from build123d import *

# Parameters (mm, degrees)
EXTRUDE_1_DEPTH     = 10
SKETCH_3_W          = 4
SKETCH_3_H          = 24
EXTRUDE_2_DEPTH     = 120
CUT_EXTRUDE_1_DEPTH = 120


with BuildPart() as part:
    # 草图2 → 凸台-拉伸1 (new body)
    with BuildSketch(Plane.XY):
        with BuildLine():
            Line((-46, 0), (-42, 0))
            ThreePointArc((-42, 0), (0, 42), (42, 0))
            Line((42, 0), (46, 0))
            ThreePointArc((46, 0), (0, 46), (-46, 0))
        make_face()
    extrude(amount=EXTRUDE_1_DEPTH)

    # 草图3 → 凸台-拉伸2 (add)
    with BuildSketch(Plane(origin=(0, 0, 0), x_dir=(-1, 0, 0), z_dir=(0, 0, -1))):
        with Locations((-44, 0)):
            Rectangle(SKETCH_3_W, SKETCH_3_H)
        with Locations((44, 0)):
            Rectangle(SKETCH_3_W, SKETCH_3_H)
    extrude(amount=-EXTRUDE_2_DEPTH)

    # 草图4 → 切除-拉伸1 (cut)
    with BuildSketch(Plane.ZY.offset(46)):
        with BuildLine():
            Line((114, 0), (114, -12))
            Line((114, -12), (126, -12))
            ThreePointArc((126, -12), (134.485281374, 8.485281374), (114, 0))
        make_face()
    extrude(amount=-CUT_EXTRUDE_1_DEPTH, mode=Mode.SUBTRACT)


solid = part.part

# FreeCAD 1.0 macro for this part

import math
import FreeCAD as App
import Part
import Sketcher


def add_polygon(sketch, points):
    """Adds a closed chain of lines whose ends are joined by coincident constraints."""
    first, n = sketch.GeometryCount, len(points)
    for a, b in zip(points, points[1:] + points[:1]):
        sketch.addGeometry(Part.LineSegment(App.Vector(*a, 0), App.Vector(*b, 0)), False)
    for i in range(n):
        sketch.addConstraint(Sketcher.Constraint("Coincident", first + i, 2, first + (i + 1) % n, 1))

doc = App.newDocument("Part")
params = doc.addObject("Spreadsheet::Sheet", "Params")
for row, (alias, value) in enumerate([
    ("sketch1_radius", "42 mm"),
    ("sketch1_radius2", "46 mm"),
    ("pad1_length", "10 mm"),
    ("sketch2_width", "4 mm"),
    ("sketch2_height", "24 mm"),
    ("pad2_length", "120 mm"),
    ("sketch3_radius", "12 mm"),
    ("pocket1_length", "120 mm"),
], start=1):
    params.set(f"A{row}", alias)
    params.set(f"B{row}", "=" + value)
    params.setAlias(f"B{row}", alias)

body = doc.addObject("PartDesign::Body", "Body")

# Sketch on XY plane
sketch1 = body.newObject("Sketcher::SketchObject", "Sketch")
sketch1.AttachmentSupport = (doc.getObject("XY_Plane"), [""])
sketch1.MapMode = "FlatFace"
sketch1.addGeometry(Part.LineSegment(App.Vector(-46, 0, 0), App.Vector(-42, 0, 0)), False)
sketch1.addGeometry(Part.ArcOfCircle(Part.Circle(App.Vector(0, 0, 0), App.Vector(0, 0, 1), 42), math.radians(0), math.radians(180)), False)
sketch1.addGeometry(Part.LineSegment(App.Vector(42, 0, 0), App.Vector(46, 0, 0)), False)
sketch1.addGeometry(Part.ArcOfCircle(Part.Circle(App.Vector(0, 0, 0), App.Vector(0, 0, 1), 46), math.radians(0), math.radians(180)), False)
sketch1.addConstraint(Sketcher.Constraint("Coincident", 0, 2, 1, 2))
sketch1.addConstraint(Sketcher.Constraint("Coincident", 1, 1, 2, 1))
sketch1.addConstraint(Sketcher.Constraint("Coincident", 2, 2, 3, 1))
sketch1.addConstraint(Sketcher.Constraint("Coincident", 3, 2, 0, 1))
sketch1.addConstraint(Sketcher.Constraint("Horizontal", 0))
sketch1.addConstraint(Sketcher.Constraint("Horizontal", 2))
sketch1.addConstraint(Sketcher.Constraint("Coincident", 1, 3, -1, 1))
sketch1.addConstraint(Sketcher.Constraint("Coincident", 3, 3, -1, 1))
sketch1.addConstraint(Sketcher.Constraint("PointOnObject", 0, 2, -1))
sketch1.addConstraint(Sketcher.Constraint("PointOnObject", 1, 1, -1))
sketch1.addConstraint(Sketcher.Constraint("Radius", 1, 42.0))
sketch1.addConstraint(Sketcher.Constraint("Radius", 3, 46.0))
sketch1.setExpression("Constraints[10]", "Params.sketch1_radius")
sketch1.setExpression("Constraints[11]", "Params.sketch1_radius2")
pad1 = body.newObject("PartDesign::Pad", "Pad")
pad1.Profile = sketch1
pad1.setExpression("Length", "Params.pad1_length")

# Sketch on XY plane
sketch2 = body.newObject("Sketcher::SketchObject", "Sketch001")
sketch2.AttachmentSupport = (doc.getObject("XY_Plane"), [""])
sketch2.MapMode = "FlatFace"
add_polygon(sketch2, [(46, 12), (46, -12), (42, -12), (42, 12)])  # lines 0-3
add_polygon(sketch2, [(-42, 12), (-42, -12), (-46, -12), (-46, 12)])  # lines 4-7
sketch2.addConstraint(Sketcher.Constraint("Vertical", 0))
sketch2.addConstraint(Sketcher.Constraint("Horizontal", 1))
sketch2.addConstraint(Sketcher.Constraint("Vertical", 2))
sketch2.addConstraint(Sketcher.Constraint("Horizontal", 3))
sketch2.addConstraint(Sketcher.Constraint("Vertical", 4))
sketch2.addConstraint(Sketcher.Constraint("Horizontal", 5))
sketch2.addConstraint(Sketcher.Constraint("Vertical", 6))
sketch2.addConstraint(Sketcher.Constraint("Horizontal", 7))
sketch2.addConstraint(Sketcher.Constraint("Symmetric", 2, 2, 4, 2, -1, 1))
sketch2.addConstraint(Sketcher.Constraint("Symmetric", 0, 2, 6, 2, -1, 1))
sketch2.addConstraint(Sketcher.Constraint("Horizontal", 1, 2, 4, 2))
sketch2.addConstraint(Sketcher.Constraint("DistanceX", 1, 2, 1, 1, 4.0))
sketch2.addConstraint(Sketcher.Constraint("DistanceY", 0, 2, 0, 1, 24.0))
sketch2.addConstraint(Sketcher.Constraint("DistanceX", -1, 1, 0, 2, 46.0))
sketch2.setExpression("Constraints[19]", "Params.sketch2_width")
sketch2.setExpression("Constraints[20]", "Params.sketch2_height")
pad2 = body.newObject("PartDesign::Pad", "Pad001")
pad2.Profile = sketch2
pad2.setExpression("Length", "Params.pad2_length")

# Sketch on YZ plane
sketch3 = body.newObject("Sketcher::SketchObject", "Sketch002")
sketch3.AttachmentSupport = (doc.getObject("YZ_Plane"), [""])
sketch3.MapMode = "FlatFace"
sketch3.AttachmentOffset = App.Placement(App.Vector(0, 0, -46), App.Rotation())
sketch3.addGeometry(Part.LineSegment(App.Vector(0, 114, 0), App.Vector(-12, 114, 0)), False)
sketch3.addGeometry(Part.LineSegment(App.Vector(-12, 114, 0), App.Vector(-12, 126, 0)), False)
sketch3.addGeometry(Part.ArcOfCircle(Part.Circle(App.Vector(0, 126, 0), App.Vector(0, 0, 1), 12), math.radians(-90), math.radians(180)), False)
sketch3.addConstraint(Sketcher.Constraint("Coincident", 0, 2, 1, 1))
sketch3.addConstraint(Sketcher.Constraint("Tangent", 1, 2, 2, 2))
sketch3.addConstraint(Sketcher.Constraint("Tangent", 2, 1, 0, 1))
sketch3.addConstraint(Sketcher.Constraint("Horizontal", 0))
sketch3.addConstraint(Sketcher.Constraint("Vertical", 1))
sketch3.addConstraint(Sketcher.Constraint("PointOnObject", 2, 3, -2))
sketch3.addConstraint(Sketcher.Constraint("Radius", 2, 12.0))
sketch3.addConstraint(Sketcher.Constraint("DistanceY", -1, 1, 2, 3, 126.0))
sketch3.setExpression("Constraints[6]", "Params.sketch3_radius")
pocket1 = body.newObject("PartDesign::Pocket", "Pocket")
pocket1.Profile = sketch3
pocket1.setExpression("Length", "Params.pocket1_length")
pocket1.Reversed = True

doc.recompute()
